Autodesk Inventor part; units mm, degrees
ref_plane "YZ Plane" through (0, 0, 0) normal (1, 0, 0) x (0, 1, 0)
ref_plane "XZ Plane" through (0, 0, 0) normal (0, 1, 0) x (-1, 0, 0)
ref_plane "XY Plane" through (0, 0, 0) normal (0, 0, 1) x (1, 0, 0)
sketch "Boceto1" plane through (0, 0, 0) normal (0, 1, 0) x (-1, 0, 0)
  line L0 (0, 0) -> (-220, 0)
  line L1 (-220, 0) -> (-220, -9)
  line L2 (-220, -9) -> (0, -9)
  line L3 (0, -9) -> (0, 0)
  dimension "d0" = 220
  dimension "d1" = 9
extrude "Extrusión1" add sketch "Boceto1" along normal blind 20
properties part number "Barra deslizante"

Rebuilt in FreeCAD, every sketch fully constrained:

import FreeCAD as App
import Part
import Sketcher
Q = App.Units.Quantity


def add_polygon(sketch, points):
    """Adds a closed chain of lines whose ends are joined by coincident constraints."""
    first, n = sketch.GeometryCount, len(points)
    for a, b in zip(points, points[1:] + points[:1]):
        sketch.addGeometry(Part.LineSegment(App.Vector(*a, 0), App.Vector(*b, 0)), False)
    for i in range(n):
        sketch.addConstraint(Sketcher.Constraint("Coincident", first + i, 2, first + (i + 1) % n, 1))

doc = App.newDocument("Part")
params = doc.addObject("Spreadsheet::Sheet", "Params")
for row, (alias, value) in enumerate([
    ("sketch1_width", "220 mm"),
    ("sketch1_height", "9 mm"),
    ("pad1_length", "20 mm"),
], start=1):
    params.set(f"A{row}", alias)
    params.set(f"B{row}", "=" + value)
    params.setAlias(f"B{row}", alias)

body = doc.addObject("PartDesign::Body", "Body")

sketch1 = body.newObject("Sketcher::SketchObject", "Sketch")
sketch1.AttachmentSupport = (doc.getObject("XZ_Plane"), [""])
sketch1.MapMode = "FlatFace"
add_polygon(sketch1, [(0, -9), (0, 0), (220, 0), (220, -9)])
sketch1.addConstraint([
    Sketcher.Constraint("Vertical", 0),
    Sketcher.Constraint("Horizontal", 1),
    Sketcher.Constraint("Vertical", 2),
    Sketcher.Constraint("Horizontal", 3),
    Sketcher.Constraint("Coincident", 0, 2, -1, 1),
    Sketcher.Constraint("DistanceX", 1, 1, 1, 2, Q("220 mm")),
    Sketcher.Constraint("DistanceY", 0, 1, 0, 2, Q("9 mm")),
])
sketch1.setExpression("Constraints[9]", "Params.sketch1_width")
sketch1.setExpression("Constraints[10]", "Params.sketch1_height")
pad1 = body.newObject("PartDesign::Pad", "Pad")
pad1.Profile = sketch1
pad1.setExpression("Length", "Params.pad1_length")
pad1.Reversed = True

doc.recompute()
